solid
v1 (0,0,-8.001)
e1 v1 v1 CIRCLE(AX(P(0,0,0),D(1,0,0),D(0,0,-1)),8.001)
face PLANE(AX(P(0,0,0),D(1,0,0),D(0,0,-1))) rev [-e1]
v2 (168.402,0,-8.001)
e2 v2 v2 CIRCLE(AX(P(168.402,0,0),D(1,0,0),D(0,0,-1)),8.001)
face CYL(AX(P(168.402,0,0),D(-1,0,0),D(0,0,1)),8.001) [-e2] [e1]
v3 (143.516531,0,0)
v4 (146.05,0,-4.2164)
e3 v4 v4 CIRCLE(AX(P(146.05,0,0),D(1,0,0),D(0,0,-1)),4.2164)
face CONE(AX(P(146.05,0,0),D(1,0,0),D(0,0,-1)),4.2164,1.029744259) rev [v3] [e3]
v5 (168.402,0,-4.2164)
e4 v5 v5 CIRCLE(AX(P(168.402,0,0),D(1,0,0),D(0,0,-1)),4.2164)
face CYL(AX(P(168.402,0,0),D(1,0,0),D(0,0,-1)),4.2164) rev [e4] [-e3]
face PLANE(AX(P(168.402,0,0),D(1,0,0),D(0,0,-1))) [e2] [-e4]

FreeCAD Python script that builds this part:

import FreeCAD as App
import Part
import Sketcher
Q = App.Units.Quantity

doc = App.newDocument("Part")
params = doc.addObject("Spreadsheet::Sheet", "Params")
for row, (alias, value) in enumerate([
    ("sketch1_diameter", "0.63 in"),
    ("pad1_length", "6.63 in"),
    ("sketch2_diameter", "0.332 in"),
    ("hole_diameter", "0.332 in"),
    ("hole_depth", "0.88 in"),
], start=1):
    params.set(f"A{row}", alias)
    params.set(f"B{row}", "=" + value)
    params.setAlias(f"B{row}", alias)

body = doc.addObject("PartDesign::Body", "Body")

sketch1 = doc.addObject("Sketcher::SketchObject", "Sketch")
body.addObject(sketch1)
sketch1.AttachmentSupport = (doc.YZ_Plane, [""])
sketch1.MapMode = "FlatFace"
sketch1.addGeometry(Part.Circle(App.Vector(0, 0, 0), App.Vector(0, 0, 1), 8), False)
sketch1.addConstraint([
    Sketcher.Constraint("Coincident", 0, 3, -1, 1),
    Sketcher.Constraint("Diameter", 0, Q("0.63 in")),
])
sketch1.setExpression("Constraints[1]", "Params.sketch1_diameter")
pad1 = doc.addObject("PartDesign::Pad", "Pad")
body.addObject(pad1)
pad1.Profile = sketch1
pad1.setExpression("Length", "Params.pad1_length")

sketch2 = doc.addObject("Sketcher::SketchObject", "Sketch001")
body.addObject(sketch2)
sketch2.AttachmentSupport = (doc.YZ_Plane, [""])
sketch2.MapMode = "FlatFace"
sketch2.AttachmentOffset = App.Placement(App.Vector(0, 0, 6.63 * 25.4), App.Rotation())
sketch2.addGeometry(Part.Circle(App.Vector(0, 0, 0), App.Vector(0, 0, 1), 4.2), False)
sketch2.addConstraint([
    Sketcher.Constraint("Coincident", 0, 3, -1, 1),
    Sketcher.Constraint("Diameter", 0, Q("0.332 in")),
])
sketch2.setExpression("Constraints[1]", "Params.sketch2_diameter")
doc.recompute()
hole = doc.addObject("PartDesign::Hole", "Hole")
body.addObject(hole)
hole.Profile = sketch2
hole.ThreadType = "None"
hole.setExpression("Diameter", "Params.hole_diameter")
hole.DepthType = "Dimension"
hole.setExpression("Depth", "Params.hole_depth")
hole.DrillPoint = "Angled"
hole.DrillPointAngle = 118

doc.recompute()
